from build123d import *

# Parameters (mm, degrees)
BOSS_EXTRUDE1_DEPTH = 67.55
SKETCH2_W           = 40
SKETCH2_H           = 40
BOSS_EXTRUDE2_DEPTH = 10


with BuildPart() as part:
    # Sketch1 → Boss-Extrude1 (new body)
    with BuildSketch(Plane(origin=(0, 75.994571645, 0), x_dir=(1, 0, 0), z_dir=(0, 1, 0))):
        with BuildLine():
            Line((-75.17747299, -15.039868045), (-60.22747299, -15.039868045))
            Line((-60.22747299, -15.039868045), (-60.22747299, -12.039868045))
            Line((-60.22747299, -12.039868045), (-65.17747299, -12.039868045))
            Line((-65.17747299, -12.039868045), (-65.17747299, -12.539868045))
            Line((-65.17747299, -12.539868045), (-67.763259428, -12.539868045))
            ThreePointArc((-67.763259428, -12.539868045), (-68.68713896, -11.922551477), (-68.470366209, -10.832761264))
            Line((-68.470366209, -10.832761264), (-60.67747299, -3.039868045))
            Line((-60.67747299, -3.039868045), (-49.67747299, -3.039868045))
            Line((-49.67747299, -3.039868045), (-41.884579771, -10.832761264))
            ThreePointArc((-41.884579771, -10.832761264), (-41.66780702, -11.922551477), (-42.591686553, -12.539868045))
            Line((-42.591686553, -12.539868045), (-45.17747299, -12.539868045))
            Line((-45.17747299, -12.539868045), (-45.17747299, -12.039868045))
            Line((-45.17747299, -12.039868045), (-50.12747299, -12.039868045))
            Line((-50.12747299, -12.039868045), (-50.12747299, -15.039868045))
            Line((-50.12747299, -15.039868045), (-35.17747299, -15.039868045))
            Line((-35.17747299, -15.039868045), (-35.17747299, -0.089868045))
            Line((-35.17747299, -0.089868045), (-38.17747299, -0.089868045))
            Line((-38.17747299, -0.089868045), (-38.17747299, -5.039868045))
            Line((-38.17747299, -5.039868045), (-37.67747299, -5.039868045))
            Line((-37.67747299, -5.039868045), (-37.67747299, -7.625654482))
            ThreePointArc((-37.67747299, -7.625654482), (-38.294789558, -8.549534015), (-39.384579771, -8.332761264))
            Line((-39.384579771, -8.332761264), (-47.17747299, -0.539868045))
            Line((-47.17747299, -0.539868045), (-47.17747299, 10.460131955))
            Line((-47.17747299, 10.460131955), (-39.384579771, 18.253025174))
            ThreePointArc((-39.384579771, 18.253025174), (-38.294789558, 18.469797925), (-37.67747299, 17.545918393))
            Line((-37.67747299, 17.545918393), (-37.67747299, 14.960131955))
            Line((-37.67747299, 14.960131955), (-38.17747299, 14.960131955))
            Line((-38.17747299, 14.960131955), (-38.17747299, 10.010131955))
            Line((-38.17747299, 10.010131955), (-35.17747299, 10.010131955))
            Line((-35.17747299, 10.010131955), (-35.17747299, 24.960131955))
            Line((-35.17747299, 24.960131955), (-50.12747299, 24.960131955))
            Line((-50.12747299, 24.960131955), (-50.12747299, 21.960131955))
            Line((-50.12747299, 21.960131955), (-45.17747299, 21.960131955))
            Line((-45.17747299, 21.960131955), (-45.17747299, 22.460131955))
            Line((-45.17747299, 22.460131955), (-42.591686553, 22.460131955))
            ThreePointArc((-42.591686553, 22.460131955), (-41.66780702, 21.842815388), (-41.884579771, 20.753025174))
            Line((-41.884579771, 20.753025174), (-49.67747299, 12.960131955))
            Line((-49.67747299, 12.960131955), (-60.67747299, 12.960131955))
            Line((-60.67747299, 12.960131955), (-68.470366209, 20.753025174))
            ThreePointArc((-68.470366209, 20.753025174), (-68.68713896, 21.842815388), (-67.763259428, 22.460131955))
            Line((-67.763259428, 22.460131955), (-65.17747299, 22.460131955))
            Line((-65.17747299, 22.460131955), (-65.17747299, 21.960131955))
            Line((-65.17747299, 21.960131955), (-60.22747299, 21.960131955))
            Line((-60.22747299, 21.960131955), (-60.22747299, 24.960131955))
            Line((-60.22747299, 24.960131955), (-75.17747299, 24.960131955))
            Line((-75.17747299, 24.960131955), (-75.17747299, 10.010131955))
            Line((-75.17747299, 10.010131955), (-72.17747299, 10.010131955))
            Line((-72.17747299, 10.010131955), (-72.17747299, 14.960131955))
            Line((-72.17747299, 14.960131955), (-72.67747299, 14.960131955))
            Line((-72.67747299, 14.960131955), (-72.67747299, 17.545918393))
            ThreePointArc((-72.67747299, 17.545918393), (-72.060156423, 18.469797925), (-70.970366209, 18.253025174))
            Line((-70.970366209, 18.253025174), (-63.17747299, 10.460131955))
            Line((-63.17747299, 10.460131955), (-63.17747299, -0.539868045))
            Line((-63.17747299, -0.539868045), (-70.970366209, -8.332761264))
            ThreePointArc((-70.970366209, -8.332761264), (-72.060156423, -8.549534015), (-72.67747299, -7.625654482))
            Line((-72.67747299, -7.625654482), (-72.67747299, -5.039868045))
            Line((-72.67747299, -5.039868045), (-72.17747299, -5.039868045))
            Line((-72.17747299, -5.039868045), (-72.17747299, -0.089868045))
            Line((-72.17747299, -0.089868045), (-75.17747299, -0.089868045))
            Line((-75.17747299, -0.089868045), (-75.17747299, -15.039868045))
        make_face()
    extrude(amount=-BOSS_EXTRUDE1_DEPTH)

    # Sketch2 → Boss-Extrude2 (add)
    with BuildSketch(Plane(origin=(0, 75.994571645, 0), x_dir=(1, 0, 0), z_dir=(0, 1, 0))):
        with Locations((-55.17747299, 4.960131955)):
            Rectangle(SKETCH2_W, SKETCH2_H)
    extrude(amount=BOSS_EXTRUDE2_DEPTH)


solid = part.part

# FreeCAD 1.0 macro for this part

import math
import FreeCAD as App
import Part
import Sketcher

doc = App.newDocument("Part")
params = doc.addObject("Spreadsheet::Sheet", "Params")
for row, (alias, value) in enumerate([
    ("sketch1_radius", "1 mm"),
    ("sketch1_width", "11 mm"),
    ("sketch1_width2", "3 mm"),
    ("sketch1_width3", "0.5 mm"),
    ("sketch1_width4", "14.95 mm"),
    ("pad1_length", "67.55 mm"),
    ("sketch2_width", "40 mm"),
    ("pad2_length", "10 mm"),
], start=1):
    params.set(f"A{row}", alias)
    params.set(f"B{row}", "=" + value)
    params.setAlias(f"B{row}", alias)

body = doc.addObject("PartDesign::Body", "Body")

sketch1 = doc.addObject("Sketcher::SketchObject", "Sketch")
body.addObject(sketch1)
sketch1.AttachmentSupport = (doc.XZ_Plane, [""])
sketch1.MapMode = "FlatFace"
sketch1.AttachmentOffset = App.Placement(App.Vector(0, 0, -75.994572), App.Rotation())
sketch1.addGeometry(Part.LineSegment(App.Vector(-75.2, 15, 0), App.Vector(-60.2, 15, 0)), False)
sketch1.addGeometry(Part.LineSegment(App.Vector(-60.2, 15, 0), App.Vector(-60.2, 12, 0)), False)
sketch1.addGeometry(Part.LineSegment(App.Vector(-60.2, 12, 0), App.Vector(-65.2, 12, 0)), False)
sketch1.addGeometry(Part.LineSegment(App.Vector(-65.2, 12, 0), App.Vector(-65.2, 12.5, 0)), False)
sketch1.addGeometry(Part.LineSegment(App.Vector(-65.2, 12.5, 0), App.Vector(-67.8, 12.5, 0)), False)
sketch1.addGeometry(Part.ArcOfCircle(Part.Circle(App.Vector(-67.8, 11.5, 0), App.Vector(0, 0, 1), 1), math.radians(90), math.radians(225)), False)
sketch1.addGeometry(Part.LineSegment(App.Vector(-68.5, 10.8, 0), App.Vector(-60.7, 3, 0)), False)
sketch1.addGeometry(Part.LineSegment(App.Vector(-60.7, 3, 0), App.Vector(-49.7, 3, 0)), False)
sketch1.addGeometry(Part.LineSegment(App.Vector(-49.7, 3, 0), App.Vector(-41.9, 10.8, 0)), False)
sketch1.addGeometry(Part.ArcOfCircle(Part.Circle(App.Vector(-42.6, 11.5, 0), App.Vector(0, 0, 1), 1), math.radians(-45), math.radians(90)), False)
sketch1.addGeometry(Part.LineSegment(App.Vector(-42.6, 12.5, 0), App.Vector(-45.2, 12.5, 0)), False)
sketch1.addGeometry(Part.LineSegment(App.Vector(-45.2, 12.5, 0), App.Vector(-45.2, 12, 0)), False)
sketch1.addGeometry(Part.LineSegment(App.Vector(-45.2, 12, 0), App.Vector(-50.1, 12, 0)), False)
sketch1.addGeometry(Part.LineSegment(App.Vector(-50.1, 12, 0), App.Vector(-50.1, 15, 0)), False)
sketch1.addGeometry(Part.LineSegment(App.Vector(-50.1, 15, 0), App.Vector(-35.2, 15, 0)), False)
sketch1.addGeometry(Part.LineSegment(App.Vector(-35.2, 15, 0), App.Vector(-35.2, 0.1, 0)), False)
sketch1.addGeometry(Part.LineSegment(App.Vector(-35.2, 0.1, 0), App.Vector(-38.2, 0.1, 0)), False)
sketch1.addGeometry(Part.LineSegment(App.Vector(-38.2, 0.1, 0), App.Vector(-38.2, 5, 0)), False)
sketch1.addGeometry(Part.LineSegment(App.Vector(-38.2, 5, 0), App.Vector(-37.7, 5, 0)), False)
sketch1.addGeometry(Part.LineSegment(App.Vector(-37.7, 5, 0), App.Vector(-37.7, 7.6, 0)), False)
sketch1.addGeometry(Part.ArcOfCircle(Part.Circle(App.Vector(-38.7, 7.6, 0), App.Vector(0, 0, 1), 1), math.radians(0), math.radians(135)), False)
sketch1.addGeometry(Part.LineSegment(App.Vector(-39.4, 8.3, 0), App.Vector(-47.2, 0.5, 0)), False)
sketch1.addGeometry(Part.LineSegment(App.Vector(-47.2, 0.5, 0), App.Vector(-47.2, -10.5, 0)), False)
sketch1.addGeometry(Part.LineSegment(App.Vector(-47.2, -10.5, 0), App.Vector(-39.4, -18.3, 0)), False)
sketch1.addGeometry(Part.ArcOfCircle(Part.Circle(App.Vector(-38.7, -17.5, 0), App.Vector(0, 0, 1), 1), math.radians(-135), math.radians(0)), False)
sketch1.addGeometry(Part.LineSegment(App.Vector(-37.7, -17.5, 0), App.Vector(-37.7, -15, 0)), False)
sketch1.addGeometry(Part.LineSegment(App.Vector(-37.7, -15, 0), App.Vector(-38.2, -15, 0)), False)
sketch1.addGeometry(Part.LineSegment(App.Vector(-38.2, -15, 0), App.Vector(-38.2, -10, 0)), False)
sketch1.addGeometry(Part.LineSegment(App.Vector(-38.2, -10, 0), App.Vector(-35.2, -10, 0)), False)
sketch1.addGeometry(Part.LineSegment(App.Vector(-35.2, -10, 0), App.Vector(-35.2, -25, 0)), False)
sketch1.addGeometry(Part.LineSegment(App.Vector(-35.2, -25, 0), App.Vector(-50.1, -25, 0)), False)
sketch1.addGeometry(Part.LineSegment(App.Vector(-50.1, -25, 0), App.Vector(-50.1, -22, 0)), False)
sketch1.addGeometry(Part.LineSegment(App.Vector(-50.1, -22, 0), App.Vector(-45.2, -22, 0)), False)
sketch1.addGeometry(Part.LineSegment(App.Vector(-45.2, -22, 0), App.Vector(-45.2, -22.5, 0)), False)
sketch1.addGeometry(Part.LineSegment(App.Vector(-45.2, -22.5, 0), App.Vector(-42.6, -22.5, 0)), False)
sketch1.addGeometry(Part.ArcOfCircle(Part.Circle(App.Vector(-42.6, -21.5, 0), App.Vector(0, 0, 1), 1), math.radians(-90), math.radians(45)), False)
sketch1.addGeometry(Part.LineSegment(App.Vector(-41.9, -20.8, 0), App.Vector(-49.7, -13, 0)), False)
sketch1.addGeometry(Part.LineSegment(App.Vector(-49.7, -13, 0), App.Vector(-60.7, -13, 0)), False)
sketch1.addGeometry(Part.LineSegment(App.Vector(-60.7, -13, 0), App.Vector(-68.5, -20.8, 0)), False)
sketch1.addGeometry(Part.ArcOfCircle(Part.Circle(App.Vector(-67.8, -21.5, 0), App.Vector(0, 0, 1), 1), math.radians(135), math.radians(270)), False)
sketch1.addGeometry(Part.LineSegment(App.Vector(-67.8, -22.5, 0), App.Vector(-65.2, -22.5, 0)), False)
sketch1.addGeometry(Part.LineSegment(App.Vector(-65.2, -22.5, 0), App.Vector(-65.2, -22, 0)), False)
sketch1.addGeometry(Part.LineSegment(App.Vector(-65.2, -22, 0), App.Vector(-60.2, -22, 0)), False)
sketch1.addGeometry(Part.LineSegment(App.Vector(-60.2, -22, 0), App.Vector(-60.2, -25, 0)), False)
sketch1.addGeometry(Part.LineSegment(App.Vector(-60.2, -25, 0), App.Vector(-75.2, -25, 0)), False)
sketch1.addGeometry(Part.LineSegment(App.Vector(-75.2, -25, 0), App.Vector(-75.2, -10, 0)), False)
sketch1.addGeometry(Part.LineSegment(App.Vector(-75.2, -10, 0), App.Vector(-72.2, -10, 0)), False)
sketch1.addGeometry(Part.LineSegment(App.Vector(-72.2, -10, 0), App.Vector(-72.2, -15, 0)), False)
sketch1.addGeometry(Part.LineSegment(App.Vector(-72.2, -15, 0), App.Vector(-72.7, -15, 0)), False)
sketch1.addGeometry(Part.LineSegment(App.Vector(-72.7, -15, 0), App.Vector(-72.7, -17.5, 0)), False)
sketch1.addGeometry(Part.ArcOfCircle(Part.Circle(App.Vector(-71.7, -17.5, 0), App.Vector(0, 0, 1), 1), math.radians(180), math.radians(315)), False)
sketch1.addGeometry(Part.LineSegment(App.Vector(-71, -18.3, 0), App.Vector(-63.2, -10.5, 0)), False)
sketch1.addGeometry(Part.LineSegment(App.Vector(-63.2, -10.5, 0), App.Vector(-63.2, 0.5, 0)), False)
sketch1.addGeometry(Part.LineSegment(App.Vector(-63.2, 0.5, 0), App.Vector(-71, 8.3, 0)), False)
sketch1.addGeometry(Part.ArcOfCircle(Part.Circle(App.Vector(-71.7, 7.6, 0), App.Vector(0, 0, 1), 1), math.radians(45), math.radians(180)), False)
sketch1.addGeometry(Part.LineSegment(App.Vector(-72.7, 7.6, 0), App.Vector(-72.7, 5, 0)), False)
sketch1.addGeometry(Part.LineSegment(App.Vector(-72.7, 5, 0), App.Vector(-72.2, 5, 0)), False)
sketch1.addGeometry(Part.LineSegment(App.Vector(-72.2, 5, 0), App.Vector(-72.2, 0.1, 0)), False)
sketch1.addGeometry(Part.LineSegment(App.Vector(-72.2, 0.1, 0), App.Vector(-75.2, 0.1, 0)), False)
sketch1.addGeometry(Part.LineSegment(App.Vector(-75.2, 0.1, 0), App.Vector(-75.2, 15, 0)), False)
sketch1.addConstraint(Sketcher.Constraint("Coincident", 0, 2, 1, 1))
sketch1.addConstraint(Sketcher.Constraint("Coincident", 1, 2, 2, 1))
sketch1.addConstraint(Sketcher.Constraint("Coincident", 2, 2, 3, 1))
sketch1.addConstraint(Sketcher.Constraint("Coincident", 3, 2, 4, 1))
sketch1.addConstraint(Sketcher.Constraint("Tangent", 4, 2, 5, 1))
sketch1.addConstraint(Sketcher.Constraint("Tangent", 5, 2, 6, 1))
sketch1.addConstraint(Sketcher.Constraint("Coincident", 6, 2, 7, 1))
sketch1.addConstraint(Sketcher.Constraint("Coincident", 7, 2, 8, 1))
sketch1.addConstraint(Sketcher.Constraint("Tangent", 8, 2, 9, 1))
sketch1.addConstraint(Sketcher.Constraint("Tangent", 9, 2, 10, 1))
sketch1.addConstraint(Sketcher.Constraint("Coincident", 10, 2, 11, 1))
sketch1.addConstraint(Sketcher.Constraint("Coincident", 11, 2, 12, 1))
sketch1.addConstraint(Sketcher.Constraint("Coincident", 12, 2, 13, 1))
sketch1.addConstraint(Sketcher.Constraint("Coincident", 13, 2, 14, 1))
sketch1.addConstraint(Sketcher.Constraint("Coincident", 14, 2, 15, 1))
sketch1.addConstraint(Sketcher.Constraint("Coincident", 15, 2, 16, 1))
sketch1.addConstraint(Sketcher.Constraint("Coincident", 16, 2, 17, 1))
sketch1.addConstraint(Sketcher.Constraint("Coincident", 17, 2, 18, 1))
sketch1.addConstraint(Sketcher.Constraint("Coincident", 18, 2, 19, 1))
sketch1.addConstraint(Sketcher.Constraint("Tangent", 19, 2, 20, 1))
sketch1.addConstraint(Sketcher.Constraint("Tangent", 20, 2, 21, 1))
sketch1.addConstraint(Sketcher.Constraint("Coincident", 21, 2, 22, 1))
sketch1.addConstraint(Sketcher.Constraint("Coincident", 22, 2, 23, 1))
sketch1.addConstraint(Sketcher.Constraint("Tangent", 23, 2, 24, 1))
sketch1.addConstraint(Sketcher.Constraint("Tangent", 24, 2, 25, 1))
sketch1.addConstraint(Sketcher.Constraint("Coincident", 25, 2, 26, 1))
sketch1.addConstraint(Sketcher.Constraint("Coincident", 26, 2, 27, 1))
sketch1.addConstraint(Sketcher.Constraint("Coincident", 27, 2, 28, 1))
sketch1.addConstraint(Sketcher.Constraint("Coincident", 28, 2, 29, 1))
sketch1.addConstraint(Sketcher.Constraint("Coincident", 29, 2, 30, 1))
sketch1.addConstraint(Sketcher.Constraint("Coincident", 30, 2, 31, 1))
sketch1.addConstraint(Sketcher.Constraint("Coincident", 31, 2, 32, 1))
sketch1.addConstraint(Sketcher.Constraint("Coincident", 32, 2, 33, 1))
sketch1.addConstraint(Sketcher.Constraint("Coincident", 33, 2, 34, 1))
sketch1.addConstraint(Sketcher.Constraint("Tangent", 34, 2, 35, 1))
sketch1.addConstraint(Sketcher.Constraint("Tangent", 35, 2, 36, 1))
sketch1.addConstraint(Sketcher.Constraint("Coincident", 36, 2, 37, 1))
sketch1.addConstraint(Sketcher.Constraint("Coincident", 37, 2, 38, 1))
sketch1.addConstraint(Sketcher.Constraint("Tangent", 38, 2, 39, 1))
sketch1.addConstraint(Sketcher.Constraint("Tangent", 39, 2, 40, 1))
sketch1.addConstraint(Sketcher.Constraint("Coincident", 40, 2, 41, 1))
sketch1.addConstraint(Sketcher.Constraint("Coincident", 41, 2, 42, 1))
sketch1.addConstraint(Sketcher.Constraint("Coincident", 42, 2, 43, 1))
sketch1.addConstraint(Sketcher.Constraint("Coincident", 43, 2, 44, 1))
sketch1.addConstraint(Sketcher.Constraint("Coincident", 44, 2, 45, 1))
sketch1.addConstraint(Sketcher.Constraint("Coincident", 45, 2, 46, 1))
sketch1.addConstraint(Sketcher.Constraint("Coincident", 46, 2, 47, 1))
sketch1.addConstraint(Sketcher.Constraint("Coincident", 47, 2, 48, 1))
sketch1.addConstraint(Sketcher.Constraint("Coincident", 48, 2, 49, 1))
sketch1.addConstraint(Sketcher.Constraint("Tangent", 49, 2, 50, 1))
sketch1.addConstraint(Sketcher.Constraint("Tangent", 50, 2, 51, 1))
sketch1.addConstraint(Sketcher.Constraint("Coincident", 51, 2, 52, 1))
sketch1.addConstraint(Sketcher.Constraint("Coincident", 52, 2, 53, 1))
sketch1.addConstraint(Sketcher.Constraint("Tangent", 53, 2, 54, 1))
sketch1.addConstraint(Sketcher.Constraint("Tangent", 54, 2, 55, 1))
sketch1.addConstraint(Sketcher.Constraint("Coincident", 55, 2, 56, 1))
sketch1.addConstraint(Sketcher.Constraint("Coincident", 56, 2, 57, 1))
sketch1.addConstraint(Sketcher.Constraint("Coincident", 57, 2, 58, 1))
sketch1.addConstraint(Sketcher.Constraint("Coincident", 58, 2, 59, 1))
sketch1.addConstraint(Sketcher.Constraint("Coincident", 59, 2, 0, 1))
sketch1.addConstraint(Sketcher.Constraint("Horizontal", 0))
sketch1.addConstraint(Sketcher.Constraint("Vertical", 1))
sketch1.addConstraint(Sketcher.Constraint("Horizontal", 2))
sketch1.addConstraint(Sketcher.Constraint("Vertical", 3))
sketch1.addConstraint(Sketcher.Constraint("Horizontal", 4))
sketch1.addConstraint(Sketcher.Constraint("Horizontal", 7))
sketch1.addConstraint(Sketcher.Constraint("Horizontal", 10))
sketch1.addConstraint(Sketcher.Constraint("Vertical", 11))
sketch1.addConstraint(Sketcher.Constraint("Horizontal", 12))
sketch1.addConstraint(Sketcher.Constraint("Vertical", 13))
sketch1.addConstraint(Sketcher.Constraint("Horizontal", 14))
sketch1.addConstraint(Sketcher.Constraint("Vertical", 15))
sketch1.addConstraint(Sketcher.Constraint("Horizontal", 16))
sketch1.addConstraint(Sketcher.Constraint("Vertical", 17))
sketch1.addConstraint(Sketcher.Constraint("Horizontal", 18))
sketch1.addConstraint(Sketcher.Constraint("Vertical", 19))
sketch1.addConstraint(Sketcher.Constraint("Vertical", 22))
sketch1.addConstraint(Sketcher.Constraint("Vertical", 25))
sketch1.addConstraint(Sketcher.Constraint("Horizontal", 26))
sketch1.addConstraint(Sketcher.Constraint("Vertical", 27))
sketch1.addConstraint(Sketcher.Constraint("Horizontal", 28))
sketch1.addConstraint(Sketcher.Constraint("Vertical", 29))
sketch1.addConstraint(Sketcher.Constraint("Horizontal", 30))
sketch1.addConstraint(Sketcher.Constraint("Vertical", 31))
sketch1.addConstraint(Sketcher.Constraint("Horizontal", 32))
sketch1.addConstraint(Sketcher.Constraint("Vertical", 33))
sketch1.addConstraint(Sketcher.Constraint("Horizontal", 34))
sketch1.addConstraint(Sketcher.Constraint("Horizontal", 37))
sketch1.addConstraint(Sketcher.Constraint("Horizontal", 40))
sketch1.addConstraint(Sketcher.Constraint("Vertical", 41))
sketch1.addConstraint(Sketcher.Constraint("Horizontal", 42))
sketch1.addConstraint(Sketcher.Constraint("Vertical", 43))
sketch1.addConstraint(Sketcher.Constraint("Horizontal", 44))
sketch1.addConstraint(Sketcher.Constraint("Vertical", 45))
sketch1.addConstraint(Sketcher.Constraint("Horizontal", 46))
sketch1.addConstraint(Sketcher.Constraint("Vertical", 47))
sketch1.addConstraint(Sketcher.Constraint("Horizontal", 48))
sketch1.addConstraint(Sketcher.Constraint("Vertical", 49))
sketch1.addConstraint(Sketcher.Constraint("Vertical", 52))
sketch1.addConstraint(Sketcher.Constraint("Vertical", 55))
sketch1.addConstraint(Sketcher.Constraint("Horizontal", 56))
sketch1.addConstraint(Sketcher.Constraint("Vertical", 57))
sketch1.addConstraint(Sketcher.Constraint("Horizontal", 58))
sketch1.addConstraint(Sketcher.Constraint("Vertical", 59))
sketch1.addConstraint(Sketcher.Constraint("Equal", 5, 9))
sketch1.addConstraint(Sketcher.Constraint("Equal", 9, 20))
sketch1.addConstraint(Sketcher.Constraint("Equal", 20, 24))
sketch1.addConstraint(Sketcher.Constraint("Equal", 24, 35))
sketch1.addConstraint(Sketcher.Constraint("Equal", 35, 39))
sketch1.addConstraint(Sketcher.Constraint("Equal", 39, 50))
sketch1.addConstraint(Sketcher.Constraint("Equal", 50, 54))
sketch1.addConstraint(Sketcher.Constraint("Perpendicular", 6, 8))
sketch1.addConstraint(Sketcher.Constraint("Parallel", 8, 21))
sketch1.addConstraint(Sketcher.Constraint("Perpendicular", 21, 23))
sketch1.addConstraint(Sketcher.Constraint("Parallel", 23, 36))
sketch1.addConstraint(Sketcher.Constraint("Perpendicular", 36, 38))
sketch1.addConstraint(Sketcher.Constraint("Parallel", 38, 51))
sketch1.addConstraint(Sketcher.Constraint("Perpendicular", 51, 53))
sketch1.addConstraint(Sketcher.Constraint("Horizontal", 5, 3, 9, 3))
sketch1.addConstraint(Sketcher.Constraint("Horizontal", 35, 3, 39, 3))
sketch1.addConstraint(Sketcher.Constraint("Horizontal", 24, 3, 50, 3))
sketch1.addConstraint(Sketcher.Constraint("Horizontal", 20, 3, 54, 3))
sketch1.addConstraint(Sketcher.Constraint("Horizontal", 5, 2, 8, 2))
sketch1.addConstraint(Sketcher.Constraint("Horizontal", 2, 2, 11, 2))
sketch1.addConstraint(Sketcher.Constraint("Horizontal", 0, 2, 13, 2))
sketch1.addConstraint(Sketcher.Constraint("Horizontal", 32, 2, 41, 2))
sketch1.addConstraint(Sketcher.Constraint("Horizontal", 30, 2, 43, 2))
sketch1.addConstraint(Sketcher.Constraint("Horizontal", 28, 2, 45, 2))
sketch1.addConstraint(Sketcher.Constraint("Horizontal", 26, 2, 47, 2))
sketch1.addConstraint(Sketcher.Constraint("Horizontal", 22, 2, 51, 2))
sketch1.addConstraint(Sketcher.Constraint("Horizontal", 21, 2, 52, 2))
sketch1.addConstraint(Sketcher.Constraint("Horizontal", 18, 2, 55, 2))
sketch1.addConstraint(Sketcher.Constraint("Horizontal", 16, 2, 57, 2))
sketch1.addConstraint(Sketcher.Constraint("Vertical", 20, 3, 24, 3))
sketch1.addConstraint(Sketcher.Constraint("Vertical", 9, 3, 35, 3))
sketch1.addConstraint(Sketcher.Constraint("Vertical", 5, 3, 39, 3))
sketch1.addConstraint(Sketcher.Constraint("Vertical", 17, 2, 26, 2))
sketch1.addConstraint(Sketcher.Constraint("Vertical", 15, 2, 28, 2))
sketch1.addConstraint(Sketcher.Constraint("Vertical", 13, 2, 30, 2))
sketch1.addConstraint(Sketcher.Constraint("Vertical", 11, 2, 32, 2))
sketch1.addConstraint(Sketcher.Constraint("Vertical", 7, 2, 36, 2))
sketch1.addConstraint(Sketcher.Constraint("Vertical", 3, 2, 40, 2))
sketch1.addConstraint(Sketcher.Constraint("Vertical", 1, 2, 42, 2))
sketch1.addConstraint(Sketcher.Constraint("Vertical", 47, 2, 56, 2))
sketch1.addConstraint(Sketcher.Constraint("Vertical", 45, 2, 58, 2))
sketch1.addConstraint(Sketcher.Constraint("Equal", 4, 10))
sketch1.addConstraint(Sketcher.Constraint("Equal", 2, 12))
sketch1.addConstraint(Sketcher.Constraint("Equal", 0, 14))
sketch1.addConstraint(Sketcher.Constraint("Equal", 28, 46))
sketch1.addConstraint(Sketcher.Constraint("Equal", 26, 48))
sketch1.addConstraint(Sketcher.Constraint("Equal", 58, 1))
sketch1.addConstraint(Sketcher.Constraint("Equal", 56, 3))
sketch1.addConstraint(Sketcher.Constraint("Equal", 44, 15))
sketch1.addConstraint(Sketcher.Constraint("Equal", 42, 17))
sketch1.addConstraint(Sketcher.Constraint("Equal", 40, 19))
sketch1.addConstraint(Sketcher.Constraint("Equal", 37, 22))
sketch1.addConstraint(Sketcher.Constraint("Equal", 19, 25))
sketch1.addConstraint(Sketcher.Constraint("Equal", 17, 27))
sketch1.addConstraint(Sketcher.Constraint("Equal", 15, 29))
sketch1.addConstraint(Sketcher.Constraint("Equal", 13, 31))
sketch1.addConstraint(Sketcher.Constraint("Equal", 11, 33))
sketch1.addConstraint(Sketcher.Constraint("Equal", 8, 21))
sketch1.addConstraint(Sketcher.Constraint("Radius", 5, 1.0))
sketch1.addConstraint(Sketcher.Constraint("DistanceX", 7, 1, 7, 2, 11.0))
sketch1.addConstraint(Sketcher.Constraint("DistanceX", 16, 2, 16, 1, 3.0))
sketch1.addConstraint(Sketcher.Constraint("DistanceX", 18, 1, 18, 2, 0.5))
sketch1.addConstraint(Sketcher.Constraint("DistanceX", 0, 1, 0, 2, 14.95))
sketch1.addConstraint(Sketcher.Constraint("DistanceX", 2, 2, 2, 1, 4.95))
sketch1.addConstraint(Sketcher.Constraint("DistanceX", 4, 2, 4, 1, 2.585786))
sketch1.addConstraint(Sketcher.Constraint("DistanceX", 5, 3, -1, 1, 67.763259))
sketch1.addConstraint(Sketcher.Constraint("DistanceY", -1, 1, 5, 3, 11.539868))
sketch1.addConstraint(Sketcher.Constraint("DistanceY", 24, 3, -1, 1, 17.545918))
sketch1.setExpression("Constraints[162]", "Params.sketch1_radius")
sketch1.setExpression("Constraints[163]", "Params.sketch1_width")
sketch1.setExpression("Constraints[164]", "Params.sketch1_width2")
sketch1.setExpression("Constraints[165]", "Params.sketch1_width3")
sketch1.setExpression("Constraints[166]", "Params.sketch1_width4")
pad1 = doc.addObject("PartDesign::Pad", "Pad")
body.addObject(pad1)
pad1.Profile = sketch1
pad1.setExpression("Length", "Params.pad1_length")

sketch2 = doc.addObject("Sketcher::SketchObject", "Sketch001")
body.addObject(sketch2)
sketch2.AttachmentSupport = (doc.XZ_Plane, [""])
sketch2.MapMode = "FlatFace"
sketch2.AttachmentOffset = App.Placement(App.Vector(0, 0, -75.994572), App.Rotation())
sketch2.addGeometry(Part.LineSegment(App.Vector(-75, -25, 0), App.Vector(-75, 15, 0)), False)
sketch2.addGeometry(Part.LineSegment(App.Vector(-75, 15, 0), App.Vector(-35, 15, 0)), False)
sketch2.addGeometry(Part.LineSegment(App.Vector(-35, 15, 0), App.Vector(-35, -25, 0)), False)
sketch2.addGeometry(Part.LineSegment(App.Vector(-35, -25, 0), App.Vector(-75, -25, 0)), False)
sketch2.addConstraint(Sketcher.Constraint("Coincident", 0, 2, 1, 1))
sketch2.addConstraint(Sketcher.Constraint("Coincident", 1, 2, 2, 1))
sketch2.addConstraint(Sketcher.Constraint("Coincident", 2, 2, 3, 1))
sketch2.addConstraint(Sketcher.Constraint("Coincident", 3, 2, 0, 1))
sketch2.addConstraint(Sketcher.Constraint("Vertical", 0))
sketch2.addConstraint(Sketcher.Constraint("Horizontal", 1))
sketch2.addConstraint(Sketcher.Constraint("Vertical", 2))
sketch2.addConstraint(Sketcher.Constraint("Horizontal", 3))
sketch2.addConstraint(Sketcher.Constraint("Equal", 3, 0))
sketch2.addConstraint(Sketcher.Constraint("DistanceX", 1, 1, 1, 2, 40.0))
sketch2.addConstraint(Sketcher.Constraint("DistanceY", -1, 1, 0, 2, 15.039868))
sketch2.addConstraint(Sketcher.Constraint("DistanceX", 0, 2, -1, 1, 75.177473))
sketch2.setExpression("Constraints[9]", "Params.sketch2_width")
pad2 = doc.addObject("PartDesign::Pad", "Pad001")
body.addObject(pad2)
pad2.Profile = sketch2
pad2.setExpression("Length", "Params.pad2_length")
pad2.Reversed = True

doc.recompute()
